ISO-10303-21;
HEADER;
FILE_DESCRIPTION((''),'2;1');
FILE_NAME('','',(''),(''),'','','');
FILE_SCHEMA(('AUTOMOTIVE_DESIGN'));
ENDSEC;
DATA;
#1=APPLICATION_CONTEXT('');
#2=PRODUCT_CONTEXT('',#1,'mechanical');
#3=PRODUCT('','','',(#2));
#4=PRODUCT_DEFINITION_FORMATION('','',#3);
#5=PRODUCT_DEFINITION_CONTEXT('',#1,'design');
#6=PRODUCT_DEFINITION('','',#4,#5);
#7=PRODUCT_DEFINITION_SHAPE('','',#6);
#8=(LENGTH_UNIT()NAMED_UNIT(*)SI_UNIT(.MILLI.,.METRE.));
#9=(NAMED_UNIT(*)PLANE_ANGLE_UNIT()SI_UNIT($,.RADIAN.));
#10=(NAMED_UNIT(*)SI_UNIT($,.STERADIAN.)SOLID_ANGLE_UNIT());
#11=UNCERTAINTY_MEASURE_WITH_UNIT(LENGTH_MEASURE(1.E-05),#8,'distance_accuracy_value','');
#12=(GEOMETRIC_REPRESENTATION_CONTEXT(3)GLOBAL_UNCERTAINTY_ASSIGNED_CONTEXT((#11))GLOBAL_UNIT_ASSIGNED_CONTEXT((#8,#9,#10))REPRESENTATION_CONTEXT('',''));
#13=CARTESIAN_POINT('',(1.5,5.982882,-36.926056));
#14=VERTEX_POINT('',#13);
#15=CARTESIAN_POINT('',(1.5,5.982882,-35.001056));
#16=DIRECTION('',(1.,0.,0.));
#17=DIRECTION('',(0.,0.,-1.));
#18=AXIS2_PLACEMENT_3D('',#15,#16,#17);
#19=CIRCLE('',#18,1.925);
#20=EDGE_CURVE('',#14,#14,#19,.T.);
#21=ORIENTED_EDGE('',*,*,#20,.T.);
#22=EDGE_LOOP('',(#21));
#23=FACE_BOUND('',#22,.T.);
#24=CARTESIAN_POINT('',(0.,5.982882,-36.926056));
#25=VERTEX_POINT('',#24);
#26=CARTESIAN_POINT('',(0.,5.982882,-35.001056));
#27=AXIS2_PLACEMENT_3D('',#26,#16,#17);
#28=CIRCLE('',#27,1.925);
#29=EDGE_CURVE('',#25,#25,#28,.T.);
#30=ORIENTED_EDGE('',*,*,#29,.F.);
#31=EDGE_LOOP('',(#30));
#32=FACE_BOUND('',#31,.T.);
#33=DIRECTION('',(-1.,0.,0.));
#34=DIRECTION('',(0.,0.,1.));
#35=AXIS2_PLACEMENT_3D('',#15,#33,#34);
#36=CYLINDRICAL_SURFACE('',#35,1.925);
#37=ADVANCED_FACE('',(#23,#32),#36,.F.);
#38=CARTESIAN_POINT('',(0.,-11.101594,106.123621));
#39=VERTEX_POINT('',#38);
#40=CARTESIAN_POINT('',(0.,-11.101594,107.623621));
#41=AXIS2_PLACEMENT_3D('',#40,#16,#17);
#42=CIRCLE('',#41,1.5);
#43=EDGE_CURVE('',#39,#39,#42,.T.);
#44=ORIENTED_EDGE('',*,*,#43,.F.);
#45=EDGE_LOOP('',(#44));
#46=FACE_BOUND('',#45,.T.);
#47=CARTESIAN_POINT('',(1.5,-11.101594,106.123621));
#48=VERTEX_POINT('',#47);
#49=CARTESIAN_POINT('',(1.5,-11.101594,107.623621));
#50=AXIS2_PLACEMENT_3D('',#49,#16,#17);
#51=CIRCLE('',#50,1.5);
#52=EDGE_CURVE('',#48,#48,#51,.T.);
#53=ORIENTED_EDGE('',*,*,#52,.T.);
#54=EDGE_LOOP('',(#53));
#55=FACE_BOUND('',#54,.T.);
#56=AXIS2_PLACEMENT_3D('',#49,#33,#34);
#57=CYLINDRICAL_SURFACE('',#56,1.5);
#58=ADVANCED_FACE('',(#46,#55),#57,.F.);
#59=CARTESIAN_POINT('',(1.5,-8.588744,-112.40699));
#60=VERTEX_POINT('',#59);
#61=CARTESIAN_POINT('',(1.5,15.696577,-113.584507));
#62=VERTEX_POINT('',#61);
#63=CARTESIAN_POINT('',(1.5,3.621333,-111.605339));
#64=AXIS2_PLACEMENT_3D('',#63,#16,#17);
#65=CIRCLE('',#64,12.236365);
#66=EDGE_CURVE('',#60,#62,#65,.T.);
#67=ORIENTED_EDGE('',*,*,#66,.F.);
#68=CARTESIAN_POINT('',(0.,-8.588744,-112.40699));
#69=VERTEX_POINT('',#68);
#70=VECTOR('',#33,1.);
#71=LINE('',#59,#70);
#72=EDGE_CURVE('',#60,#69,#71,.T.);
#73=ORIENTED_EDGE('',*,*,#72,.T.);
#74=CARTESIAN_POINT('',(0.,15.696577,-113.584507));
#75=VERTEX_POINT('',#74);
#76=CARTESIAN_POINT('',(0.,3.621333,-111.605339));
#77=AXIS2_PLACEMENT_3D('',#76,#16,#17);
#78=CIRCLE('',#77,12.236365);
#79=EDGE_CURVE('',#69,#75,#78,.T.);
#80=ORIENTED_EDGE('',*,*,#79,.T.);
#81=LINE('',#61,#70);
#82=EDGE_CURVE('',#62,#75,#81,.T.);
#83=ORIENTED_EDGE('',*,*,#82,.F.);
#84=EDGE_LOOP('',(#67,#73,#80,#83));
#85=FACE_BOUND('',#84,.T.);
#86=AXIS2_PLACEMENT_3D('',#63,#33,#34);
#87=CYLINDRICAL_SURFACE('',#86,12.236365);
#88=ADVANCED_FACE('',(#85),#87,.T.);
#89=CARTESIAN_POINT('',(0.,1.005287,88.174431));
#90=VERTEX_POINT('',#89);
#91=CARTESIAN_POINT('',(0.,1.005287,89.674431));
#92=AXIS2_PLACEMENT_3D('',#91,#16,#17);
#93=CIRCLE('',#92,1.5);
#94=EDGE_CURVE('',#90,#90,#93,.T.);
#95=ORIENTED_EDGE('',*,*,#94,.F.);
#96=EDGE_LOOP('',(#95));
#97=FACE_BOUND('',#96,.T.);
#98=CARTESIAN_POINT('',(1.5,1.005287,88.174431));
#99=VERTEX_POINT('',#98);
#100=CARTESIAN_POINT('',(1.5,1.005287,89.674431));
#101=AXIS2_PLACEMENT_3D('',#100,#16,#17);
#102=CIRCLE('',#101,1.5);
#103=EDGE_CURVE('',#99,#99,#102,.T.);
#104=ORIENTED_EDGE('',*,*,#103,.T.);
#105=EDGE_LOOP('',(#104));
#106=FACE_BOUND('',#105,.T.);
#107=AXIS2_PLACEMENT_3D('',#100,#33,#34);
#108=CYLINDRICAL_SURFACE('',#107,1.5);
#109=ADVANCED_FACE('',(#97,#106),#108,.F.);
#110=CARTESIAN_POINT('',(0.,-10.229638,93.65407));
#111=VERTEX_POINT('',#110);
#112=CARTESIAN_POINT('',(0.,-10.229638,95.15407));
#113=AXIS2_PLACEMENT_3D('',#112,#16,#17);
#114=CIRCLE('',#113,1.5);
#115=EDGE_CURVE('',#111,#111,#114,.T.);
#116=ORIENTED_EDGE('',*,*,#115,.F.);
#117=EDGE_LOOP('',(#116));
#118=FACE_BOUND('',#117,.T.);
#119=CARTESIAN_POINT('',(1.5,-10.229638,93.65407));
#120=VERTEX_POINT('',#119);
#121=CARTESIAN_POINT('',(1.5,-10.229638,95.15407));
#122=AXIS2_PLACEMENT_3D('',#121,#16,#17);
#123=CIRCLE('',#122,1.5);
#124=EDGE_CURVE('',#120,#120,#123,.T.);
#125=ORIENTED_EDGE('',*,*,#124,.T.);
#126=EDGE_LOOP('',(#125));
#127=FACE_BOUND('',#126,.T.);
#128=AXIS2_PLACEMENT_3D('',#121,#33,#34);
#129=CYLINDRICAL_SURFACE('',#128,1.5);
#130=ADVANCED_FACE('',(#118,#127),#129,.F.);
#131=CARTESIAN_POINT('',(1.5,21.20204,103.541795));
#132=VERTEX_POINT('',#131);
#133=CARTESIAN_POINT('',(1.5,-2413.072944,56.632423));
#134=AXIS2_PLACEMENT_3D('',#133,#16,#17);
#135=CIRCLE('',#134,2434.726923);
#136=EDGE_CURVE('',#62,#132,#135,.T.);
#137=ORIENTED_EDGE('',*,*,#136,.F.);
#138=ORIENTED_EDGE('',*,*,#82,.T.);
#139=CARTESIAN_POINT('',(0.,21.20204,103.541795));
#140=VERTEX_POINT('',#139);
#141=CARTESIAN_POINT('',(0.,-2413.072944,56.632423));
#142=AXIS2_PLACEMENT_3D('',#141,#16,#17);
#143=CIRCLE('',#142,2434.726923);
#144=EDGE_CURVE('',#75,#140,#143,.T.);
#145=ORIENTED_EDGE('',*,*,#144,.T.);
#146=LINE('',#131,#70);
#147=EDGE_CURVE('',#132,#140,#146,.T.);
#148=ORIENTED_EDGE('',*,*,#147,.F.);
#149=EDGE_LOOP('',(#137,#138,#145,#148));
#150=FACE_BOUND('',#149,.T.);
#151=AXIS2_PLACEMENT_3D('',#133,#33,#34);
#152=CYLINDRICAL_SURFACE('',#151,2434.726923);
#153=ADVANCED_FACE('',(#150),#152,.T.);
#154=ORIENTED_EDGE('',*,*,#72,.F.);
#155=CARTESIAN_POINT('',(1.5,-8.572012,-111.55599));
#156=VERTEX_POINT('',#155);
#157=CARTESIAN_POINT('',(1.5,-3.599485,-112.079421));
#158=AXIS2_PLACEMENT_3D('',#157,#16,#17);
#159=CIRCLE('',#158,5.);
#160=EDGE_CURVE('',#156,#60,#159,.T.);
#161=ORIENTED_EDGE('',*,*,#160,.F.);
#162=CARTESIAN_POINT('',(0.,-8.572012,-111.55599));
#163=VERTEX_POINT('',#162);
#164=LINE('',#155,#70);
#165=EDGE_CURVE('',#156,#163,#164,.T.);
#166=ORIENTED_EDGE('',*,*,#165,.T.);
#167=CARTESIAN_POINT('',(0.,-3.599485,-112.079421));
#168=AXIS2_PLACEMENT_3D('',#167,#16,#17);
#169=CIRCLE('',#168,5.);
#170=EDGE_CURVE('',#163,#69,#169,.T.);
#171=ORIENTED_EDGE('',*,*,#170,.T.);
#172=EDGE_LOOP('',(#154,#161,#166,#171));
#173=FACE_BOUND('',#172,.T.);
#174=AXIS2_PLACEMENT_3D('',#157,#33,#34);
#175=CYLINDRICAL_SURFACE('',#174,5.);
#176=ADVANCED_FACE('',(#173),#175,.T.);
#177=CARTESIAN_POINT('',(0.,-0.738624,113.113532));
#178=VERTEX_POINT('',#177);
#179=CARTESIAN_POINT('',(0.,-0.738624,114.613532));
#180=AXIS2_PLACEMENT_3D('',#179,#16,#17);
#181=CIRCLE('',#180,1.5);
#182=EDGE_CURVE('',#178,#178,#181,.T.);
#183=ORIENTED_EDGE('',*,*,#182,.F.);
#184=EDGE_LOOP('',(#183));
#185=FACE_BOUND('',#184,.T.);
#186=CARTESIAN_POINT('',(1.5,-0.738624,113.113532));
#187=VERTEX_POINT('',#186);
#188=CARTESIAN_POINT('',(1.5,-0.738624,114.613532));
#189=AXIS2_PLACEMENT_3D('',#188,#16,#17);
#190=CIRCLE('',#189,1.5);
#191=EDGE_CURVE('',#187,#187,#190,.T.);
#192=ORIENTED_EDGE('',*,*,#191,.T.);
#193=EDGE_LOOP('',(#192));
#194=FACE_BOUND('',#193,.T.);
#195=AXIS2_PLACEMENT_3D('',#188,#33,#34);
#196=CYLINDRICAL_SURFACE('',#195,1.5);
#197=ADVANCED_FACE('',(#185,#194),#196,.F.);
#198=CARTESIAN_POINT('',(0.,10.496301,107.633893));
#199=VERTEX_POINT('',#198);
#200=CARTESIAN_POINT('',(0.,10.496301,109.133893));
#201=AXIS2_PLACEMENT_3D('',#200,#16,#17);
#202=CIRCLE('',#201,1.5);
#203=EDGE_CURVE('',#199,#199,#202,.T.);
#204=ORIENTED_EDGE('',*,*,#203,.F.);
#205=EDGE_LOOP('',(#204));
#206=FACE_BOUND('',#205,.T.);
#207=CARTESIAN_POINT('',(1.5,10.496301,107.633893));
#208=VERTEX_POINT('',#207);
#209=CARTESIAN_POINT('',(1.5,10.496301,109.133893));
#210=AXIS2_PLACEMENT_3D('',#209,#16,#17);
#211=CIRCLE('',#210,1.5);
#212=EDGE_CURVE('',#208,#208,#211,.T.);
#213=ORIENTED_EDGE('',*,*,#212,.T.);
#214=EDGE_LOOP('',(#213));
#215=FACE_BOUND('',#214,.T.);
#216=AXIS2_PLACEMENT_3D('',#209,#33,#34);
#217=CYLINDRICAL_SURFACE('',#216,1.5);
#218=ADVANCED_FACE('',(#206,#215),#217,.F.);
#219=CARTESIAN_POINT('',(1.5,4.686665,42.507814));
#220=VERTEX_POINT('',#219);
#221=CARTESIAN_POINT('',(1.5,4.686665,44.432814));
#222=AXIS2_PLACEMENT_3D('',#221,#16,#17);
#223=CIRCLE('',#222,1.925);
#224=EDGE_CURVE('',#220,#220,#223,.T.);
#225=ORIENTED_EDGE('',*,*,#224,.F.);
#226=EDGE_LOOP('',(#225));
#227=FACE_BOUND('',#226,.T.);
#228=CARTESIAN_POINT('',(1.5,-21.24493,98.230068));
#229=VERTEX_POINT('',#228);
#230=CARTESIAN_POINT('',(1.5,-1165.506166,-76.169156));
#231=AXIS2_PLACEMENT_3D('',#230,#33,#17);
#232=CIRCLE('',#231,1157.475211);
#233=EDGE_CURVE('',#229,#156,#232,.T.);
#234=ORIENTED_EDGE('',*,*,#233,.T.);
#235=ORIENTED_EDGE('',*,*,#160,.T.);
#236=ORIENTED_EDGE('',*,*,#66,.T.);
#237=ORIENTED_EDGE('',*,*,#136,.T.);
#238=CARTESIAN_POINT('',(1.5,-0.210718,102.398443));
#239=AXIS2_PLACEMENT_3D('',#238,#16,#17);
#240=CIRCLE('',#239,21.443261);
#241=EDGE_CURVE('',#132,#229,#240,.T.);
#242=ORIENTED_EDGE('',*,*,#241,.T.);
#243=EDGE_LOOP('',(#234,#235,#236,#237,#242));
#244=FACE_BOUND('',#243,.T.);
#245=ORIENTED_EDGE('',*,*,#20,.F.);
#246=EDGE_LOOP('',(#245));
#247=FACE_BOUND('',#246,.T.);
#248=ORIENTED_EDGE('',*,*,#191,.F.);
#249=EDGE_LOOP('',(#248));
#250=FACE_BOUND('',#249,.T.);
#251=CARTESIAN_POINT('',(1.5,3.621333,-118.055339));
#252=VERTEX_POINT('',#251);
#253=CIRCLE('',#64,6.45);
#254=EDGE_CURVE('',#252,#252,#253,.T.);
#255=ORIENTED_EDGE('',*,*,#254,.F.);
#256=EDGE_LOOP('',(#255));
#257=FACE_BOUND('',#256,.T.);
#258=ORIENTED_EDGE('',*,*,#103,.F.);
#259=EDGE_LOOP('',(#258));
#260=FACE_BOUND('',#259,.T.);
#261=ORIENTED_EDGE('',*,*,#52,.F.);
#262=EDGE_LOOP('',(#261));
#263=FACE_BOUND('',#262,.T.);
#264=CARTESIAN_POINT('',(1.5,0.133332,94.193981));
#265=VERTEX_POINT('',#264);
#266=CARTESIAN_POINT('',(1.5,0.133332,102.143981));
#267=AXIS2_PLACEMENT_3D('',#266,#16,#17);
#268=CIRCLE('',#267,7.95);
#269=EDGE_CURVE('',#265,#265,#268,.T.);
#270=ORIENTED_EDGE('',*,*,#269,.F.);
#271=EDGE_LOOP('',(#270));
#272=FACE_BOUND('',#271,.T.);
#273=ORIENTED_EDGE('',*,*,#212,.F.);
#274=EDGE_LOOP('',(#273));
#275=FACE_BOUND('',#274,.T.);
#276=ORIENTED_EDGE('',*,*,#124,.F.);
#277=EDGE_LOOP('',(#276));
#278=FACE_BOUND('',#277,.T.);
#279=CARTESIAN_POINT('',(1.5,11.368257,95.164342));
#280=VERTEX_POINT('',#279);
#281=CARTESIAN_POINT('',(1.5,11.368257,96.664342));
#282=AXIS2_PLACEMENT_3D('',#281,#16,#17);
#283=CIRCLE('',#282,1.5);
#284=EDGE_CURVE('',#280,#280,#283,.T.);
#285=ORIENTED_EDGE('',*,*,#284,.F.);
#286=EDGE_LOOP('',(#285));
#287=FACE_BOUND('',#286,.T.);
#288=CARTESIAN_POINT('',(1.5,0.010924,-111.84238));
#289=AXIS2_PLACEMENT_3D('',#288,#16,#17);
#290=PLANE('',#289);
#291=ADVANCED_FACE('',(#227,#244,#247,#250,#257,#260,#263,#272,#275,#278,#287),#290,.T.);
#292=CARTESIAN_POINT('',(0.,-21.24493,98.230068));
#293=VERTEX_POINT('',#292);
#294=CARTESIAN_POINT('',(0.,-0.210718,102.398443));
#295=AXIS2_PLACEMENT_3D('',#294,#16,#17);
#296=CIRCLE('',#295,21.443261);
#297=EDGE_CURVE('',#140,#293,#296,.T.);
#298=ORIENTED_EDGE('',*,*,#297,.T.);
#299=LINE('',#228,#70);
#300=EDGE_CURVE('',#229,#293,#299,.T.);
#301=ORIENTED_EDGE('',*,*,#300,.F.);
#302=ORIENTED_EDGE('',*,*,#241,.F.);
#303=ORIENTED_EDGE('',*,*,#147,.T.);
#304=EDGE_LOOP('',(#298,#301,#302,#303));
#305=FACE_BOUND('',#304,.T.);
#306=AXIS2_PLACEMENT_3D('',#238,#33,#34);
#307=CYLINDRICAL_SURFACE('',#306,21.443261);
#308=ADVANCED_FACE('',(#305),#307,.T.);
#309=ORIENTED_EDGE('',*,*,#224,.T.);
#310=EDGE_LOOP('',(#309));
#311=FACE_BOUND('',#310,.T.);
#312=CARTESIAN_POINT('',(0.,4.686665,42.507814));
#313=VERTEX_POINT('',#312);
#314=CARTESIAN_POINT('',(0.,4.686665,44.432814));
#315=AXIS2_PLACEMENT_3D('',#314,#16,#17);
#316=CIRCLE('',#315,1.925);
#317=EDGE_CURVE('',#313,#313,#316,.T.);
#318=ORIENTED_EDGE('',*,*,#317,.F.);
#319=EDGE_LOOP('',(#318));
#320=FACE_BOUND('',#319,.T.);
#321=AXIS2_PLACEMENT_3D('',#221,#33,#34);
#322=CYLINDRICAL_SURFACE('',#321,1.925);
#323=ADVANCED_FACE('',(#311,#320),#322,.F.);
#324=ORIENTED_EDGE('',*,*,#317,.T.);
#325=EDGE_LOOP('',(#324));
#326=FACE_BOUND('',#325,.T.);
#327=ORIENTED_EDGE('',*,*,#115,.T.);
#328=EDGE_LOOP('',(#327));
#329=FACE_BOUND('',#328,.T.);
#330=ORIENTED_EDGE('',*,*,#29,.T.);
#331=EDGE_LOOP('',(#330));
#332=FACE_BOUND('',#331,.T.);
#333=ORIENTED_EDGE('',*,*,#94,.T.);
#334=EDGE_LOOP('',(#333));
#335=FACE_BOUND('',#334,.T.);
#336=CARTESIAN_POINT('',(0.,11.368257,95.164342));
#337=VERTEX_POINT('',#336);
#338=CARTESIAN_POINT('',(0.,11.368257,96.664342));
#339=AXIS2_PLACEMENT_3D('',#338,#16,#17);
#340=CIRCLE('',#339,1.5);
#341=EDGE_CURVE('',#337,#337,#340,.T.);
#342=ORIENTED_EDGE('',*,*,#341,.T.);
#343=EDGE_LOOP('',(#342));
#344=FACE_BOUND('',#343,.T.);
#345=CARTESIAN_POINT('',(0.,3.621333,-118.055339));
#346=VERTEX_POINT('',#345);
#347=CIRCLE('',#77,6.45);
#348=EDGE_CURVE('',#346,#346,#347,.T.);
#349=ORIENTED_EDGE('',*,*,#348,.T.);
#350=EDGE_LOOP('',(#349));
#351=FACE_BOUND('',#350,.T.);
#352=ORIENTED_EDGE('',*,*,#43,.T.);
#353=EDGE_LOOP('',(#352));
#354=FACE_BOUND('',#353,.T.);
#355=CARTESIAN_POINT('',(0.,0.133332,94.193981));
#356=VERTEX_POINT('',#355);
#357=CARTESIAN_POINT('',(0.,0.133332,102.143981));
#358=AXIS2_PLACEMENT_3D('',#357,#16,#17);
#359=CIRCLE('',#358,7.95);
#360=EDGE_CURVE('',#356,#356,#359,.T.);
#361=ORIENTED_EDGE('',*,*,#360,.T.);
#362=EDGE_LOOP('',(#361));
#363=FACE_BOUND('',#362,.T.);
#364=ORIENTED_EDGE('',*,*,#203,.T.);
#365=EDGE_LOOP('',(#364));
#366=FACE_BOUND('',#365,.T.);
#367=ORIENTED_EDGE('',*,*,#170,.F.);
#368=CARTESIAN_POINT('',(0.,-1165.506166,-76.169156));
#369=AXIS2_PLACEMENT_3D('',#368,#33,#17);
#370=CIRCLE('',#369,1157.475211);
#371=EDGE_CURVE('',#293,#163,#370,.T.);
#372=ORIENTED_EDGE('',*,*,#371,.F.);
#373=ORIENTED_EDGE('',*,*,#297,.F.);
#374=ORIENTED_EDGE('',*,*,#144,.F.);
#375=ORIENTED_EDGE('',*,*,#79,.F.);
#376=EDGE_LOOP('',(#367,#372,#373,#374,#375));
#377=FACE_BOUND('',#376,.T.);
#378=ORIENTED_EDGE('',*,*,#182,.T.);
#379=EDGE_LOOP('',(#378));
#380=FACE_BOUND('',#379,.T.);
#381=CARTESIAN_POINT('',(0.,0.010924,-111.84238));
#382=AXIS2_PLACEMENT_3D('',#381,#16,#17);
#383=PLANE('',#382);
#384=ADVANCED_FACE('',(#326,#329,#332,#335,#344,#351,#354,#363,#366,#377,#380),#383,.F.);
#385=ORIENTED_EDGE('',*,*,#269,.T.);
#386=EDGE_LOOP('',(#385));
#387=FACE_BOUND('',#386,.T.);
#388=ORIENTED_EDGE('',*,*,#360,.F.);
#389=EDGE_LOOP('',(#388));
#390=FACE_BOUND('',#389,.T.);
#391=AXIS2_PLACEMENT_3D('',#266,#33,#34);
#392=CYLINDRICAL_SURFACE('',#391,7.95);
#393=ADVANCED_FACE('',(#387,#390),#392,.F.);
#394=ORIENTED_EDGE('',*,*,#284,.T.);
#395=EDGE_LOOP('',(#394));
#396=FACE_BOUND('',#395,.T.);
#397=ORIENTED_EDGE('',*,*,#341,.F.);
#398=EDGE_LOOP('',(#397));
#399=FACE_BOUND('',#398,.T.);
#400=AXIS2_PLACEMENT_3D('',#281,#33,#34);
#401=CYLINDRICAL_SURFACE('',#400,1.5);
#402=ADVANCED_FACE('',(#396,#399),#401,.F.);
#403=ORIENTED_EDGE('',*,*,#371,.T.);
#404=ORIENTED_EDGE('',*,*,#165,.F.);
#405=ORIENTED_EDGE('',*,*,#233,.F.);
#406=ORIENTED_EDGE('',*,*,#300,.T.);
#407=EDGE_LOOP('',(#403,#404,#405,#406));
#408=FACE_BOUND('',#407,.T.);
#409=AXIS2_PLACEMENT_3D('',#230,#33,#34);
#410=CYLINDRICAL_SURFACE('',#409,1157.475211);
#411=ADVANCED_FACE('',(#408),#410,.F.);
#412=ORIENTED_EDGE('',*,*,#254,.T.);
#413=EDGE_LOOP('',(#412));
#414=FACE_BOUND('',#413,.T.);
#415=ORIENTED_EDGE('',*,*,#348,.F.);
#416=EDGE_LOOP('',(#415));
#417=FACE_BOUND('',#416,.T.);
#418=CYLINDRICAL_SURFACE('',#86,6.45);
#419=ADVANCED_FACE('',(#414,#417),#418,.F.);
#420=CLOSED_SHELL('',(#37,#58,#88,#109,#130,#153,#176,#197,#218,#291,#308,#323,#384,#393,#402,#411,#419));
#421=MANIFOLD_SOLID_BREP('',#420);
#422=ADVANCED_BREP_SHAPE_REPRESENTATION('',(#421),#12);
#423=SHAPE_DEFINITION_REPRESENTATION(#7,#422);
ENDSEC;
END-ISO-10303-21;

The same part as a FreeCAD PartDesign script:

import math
import FreeCAD as App
import Part
import Sketcher

V = App.Vector

doc = App.newDocument("Part")
body = doc.addObject("PartDesign::Body", "Body")

# Sketch on YZ plane
sketch1 = body.newObject("Sketcher::SketchObject", "Sketch")
sketch1.AttachmentSupport = (doc.getObject("YZ_Plane"), [""])
sketch1.MapMode = "FlatFace"
sketch1.addGeometry([
    Part.ArcOfCircle(Part.Circle(V(-1165.5, -76.2, 0), V(0, 0, 1), 1157.5), math.radians(-1.75), math.radians(8.67)),  # 0
    Part.ArcOfCircle(Part.Circle(V(-3.6, -112.1, 0), V(0, 0, 1), 5), math.radians(173.99), math.radians(183.76)),  # 1
    Part.ArcOfCircle(Part.Circle(V(3.6, -111.6, 0), V(0, 0, 1), 12.2), math.radians(-176), math.radians(-9)),  # 2
    Part.ArcOfCircle(Part.Circle(V(-2413.1, 56.6, 0), V(0, 0, 1), 2434.7), math.radians(-4.01), math.radians(1.1)),  # 3
    Part.ArcOfCircle(Part.Circle(V(-0.2, 102.4, 0), V(0, 0, 1), 21.4), math.radians(3), math.radians(191)),  # 4
    Part.Circle(V(-11.1, 107.6, 0), V(0, 0, 1), 1.5),  # 5
    Part.Circle(V(-10.2, 95.2, 0), V(0, 0, 1), 1.5),  # 6
    Part.Circle(V(-0.7, 114.6, 0), V(0, 0, 1), 1.5),  # 7
    Part.Circle(V(3.6, -111.6, 0), V(0, 0, 1), 6.5),  # 8
    Part.Circle(V(6, -35, 0), V(0, 0, 1), 1.9),  # 9
    Part.Circle(V(4.7, 44.4, 0), V(0, 0, 1), 1.9),  # 10
    Part.Circle(V(1, 89.7, 0), V(0, 0, 1), 1.5),  # 11
    Part.Circle(V(0.1, 102.1, 0), V(0, 0, 1), 8),  # 12
    Part.Circle(V(10.5, 109.1, 0), V(0, 0, 1), 1.5),  # 13
    Part.Circle(V(11.4, 96.7, 0), V(0, 0, 1), 1.5),  # 14
], False)
sketch1.addConstraint([
    Sketcher.Constraint("Coincident", 0, 1, 1, 1),
    Sketcher.Constraint("Tangent", 1, 2, 2, 1),
    Sketcher.Constraint("Coincident", 2, 2, 3, 1),
    Sketcher.Constraint("Coincident", 3, 2, 4, 1),
    Sketcher.Constraint("Coincident", 4, 2, 0, 2),
    Sketcher.Constraint("Coincident", 8, 3, 2, 3),
    Sketcher.Constraint("Equal", 5, 6),
    Sketcher.Constraint("Equal", 6, 7),
    Sketcher.Constraint("Equal", 9, 10),
    Sketcher.Constraint("Equal", 7, 11),
    Sketcher.Constraint("Equal", 11, 13),
    Sketcher.Constraint("Equal", 13, 14),
    Sketcher.Constraint("Diameter", 5, 3.0),
    Sketcher.Constraint("Radius", 1, 5.0),
    Sketcher.Constraint("Diameter", 8, 12.9),
    Sketcher.Constraint("Diameter", 12, 15.9),
    Sketcher.Constraint("Diameter", 9, 3.85),
    Sketcher.Constraint("Radius", 0, 1157.475211),
    Sketcher.Constraint("Radius", 4, 21.443261),
    Sketcher.Constraint("Radius", 2, 12.236365),
    Sketcher.Constraint("Radius", 3, 2434.726923),
    Sketcher.Constraint("DistanceY", 1, 2, 0, 1, 0.851001),
    Sketcher.Constraint("DistanceY", 6, 3, 4, 2, 3.075998),
    Sketcher.Constraint("DistanceX", -1, 1, 13, 3, 10.496301),
    Sketcher.Constraint("DistanceX", 0, 3, 2, 3, 1169.127499),
    Sketcher.Constraint("DistanceY", 0, 3, 4, 3, 178.567599),
    Sketcher.Constraint("DistanceY", 3, 3, 5, 3, 50.991198),
    Sketcher.Constraint("DistanceX", 4, 3, 9, 3, 6.193599),
    Sketcher.Constraint("DistanceY", 9, 3, 4, 3, 137.399498),
    Sketcher.Constraint("DistanceY", 11, 3, 7, 3, 24.939101),
    Sketcher.Constraint("DistanceY", 14, 3, 4, 3, 5.734101),
    Sketcher.Constraint("DistanceY", 1, 3, -1, 1, 112.079421),
    Sketcher.Constraint("DistanceY", 2, 3, -1, 1, 111.605339),
    Sketcher.Constraint("DistanceY", -1, 1, 5, 3, 107.623621),
    Sketcher.Constraint("DistanceX", 6, 3, -1, 1, 10.229638),
    Sketcher.Constraint("DistanceY", -1, 1, 6, 3, 95.15407),
    Sketcher.Constraint("DistanceX", -1, 1, 9, 3, 5.982882),
    Sketcher.Constraint("DistanceY", -1, 1, 11, 3, 89.674431),
    Sketcher.Constraint("DistanceX", -1, 1, 12, 3, 0.133332),
    Sketcher.Constraint("DistanceY", -1, 1, 12, 3, 102.143981),
    Sketcher.Constraint("DistanceX", -1, 1, 3, 2, 21.20204),
    Sketcher.Constraint("DistanceX", 5, 3, 1, 3, 7.502109),
    Sketcher.Constraint("DistanceX", 5, 3, 7, 3, 10.36297),
    Sketcher.Constraint("DistanceY", 10, 3, 4, 3, 57.965629),
    Sketcher.Constraint("DistanceX", 5, 3, 10, 3, 15.788259),
    Sketcher.Constraint("DistanceX", 5, 3, 11, 3, 12.106882),
    Sketcher.Constraint("DistanceY", 12, 3, 13, 3, 6.989911),
    Sketcher.Constraint("DistanceX", 11, 3, 14, 3, 10.36297),
])
pad1 = body.newObject("PartDesign::Pad", "Pad")
pad1.Profile = sketch1
pad1.Length = 1.5

doc.recompute()
